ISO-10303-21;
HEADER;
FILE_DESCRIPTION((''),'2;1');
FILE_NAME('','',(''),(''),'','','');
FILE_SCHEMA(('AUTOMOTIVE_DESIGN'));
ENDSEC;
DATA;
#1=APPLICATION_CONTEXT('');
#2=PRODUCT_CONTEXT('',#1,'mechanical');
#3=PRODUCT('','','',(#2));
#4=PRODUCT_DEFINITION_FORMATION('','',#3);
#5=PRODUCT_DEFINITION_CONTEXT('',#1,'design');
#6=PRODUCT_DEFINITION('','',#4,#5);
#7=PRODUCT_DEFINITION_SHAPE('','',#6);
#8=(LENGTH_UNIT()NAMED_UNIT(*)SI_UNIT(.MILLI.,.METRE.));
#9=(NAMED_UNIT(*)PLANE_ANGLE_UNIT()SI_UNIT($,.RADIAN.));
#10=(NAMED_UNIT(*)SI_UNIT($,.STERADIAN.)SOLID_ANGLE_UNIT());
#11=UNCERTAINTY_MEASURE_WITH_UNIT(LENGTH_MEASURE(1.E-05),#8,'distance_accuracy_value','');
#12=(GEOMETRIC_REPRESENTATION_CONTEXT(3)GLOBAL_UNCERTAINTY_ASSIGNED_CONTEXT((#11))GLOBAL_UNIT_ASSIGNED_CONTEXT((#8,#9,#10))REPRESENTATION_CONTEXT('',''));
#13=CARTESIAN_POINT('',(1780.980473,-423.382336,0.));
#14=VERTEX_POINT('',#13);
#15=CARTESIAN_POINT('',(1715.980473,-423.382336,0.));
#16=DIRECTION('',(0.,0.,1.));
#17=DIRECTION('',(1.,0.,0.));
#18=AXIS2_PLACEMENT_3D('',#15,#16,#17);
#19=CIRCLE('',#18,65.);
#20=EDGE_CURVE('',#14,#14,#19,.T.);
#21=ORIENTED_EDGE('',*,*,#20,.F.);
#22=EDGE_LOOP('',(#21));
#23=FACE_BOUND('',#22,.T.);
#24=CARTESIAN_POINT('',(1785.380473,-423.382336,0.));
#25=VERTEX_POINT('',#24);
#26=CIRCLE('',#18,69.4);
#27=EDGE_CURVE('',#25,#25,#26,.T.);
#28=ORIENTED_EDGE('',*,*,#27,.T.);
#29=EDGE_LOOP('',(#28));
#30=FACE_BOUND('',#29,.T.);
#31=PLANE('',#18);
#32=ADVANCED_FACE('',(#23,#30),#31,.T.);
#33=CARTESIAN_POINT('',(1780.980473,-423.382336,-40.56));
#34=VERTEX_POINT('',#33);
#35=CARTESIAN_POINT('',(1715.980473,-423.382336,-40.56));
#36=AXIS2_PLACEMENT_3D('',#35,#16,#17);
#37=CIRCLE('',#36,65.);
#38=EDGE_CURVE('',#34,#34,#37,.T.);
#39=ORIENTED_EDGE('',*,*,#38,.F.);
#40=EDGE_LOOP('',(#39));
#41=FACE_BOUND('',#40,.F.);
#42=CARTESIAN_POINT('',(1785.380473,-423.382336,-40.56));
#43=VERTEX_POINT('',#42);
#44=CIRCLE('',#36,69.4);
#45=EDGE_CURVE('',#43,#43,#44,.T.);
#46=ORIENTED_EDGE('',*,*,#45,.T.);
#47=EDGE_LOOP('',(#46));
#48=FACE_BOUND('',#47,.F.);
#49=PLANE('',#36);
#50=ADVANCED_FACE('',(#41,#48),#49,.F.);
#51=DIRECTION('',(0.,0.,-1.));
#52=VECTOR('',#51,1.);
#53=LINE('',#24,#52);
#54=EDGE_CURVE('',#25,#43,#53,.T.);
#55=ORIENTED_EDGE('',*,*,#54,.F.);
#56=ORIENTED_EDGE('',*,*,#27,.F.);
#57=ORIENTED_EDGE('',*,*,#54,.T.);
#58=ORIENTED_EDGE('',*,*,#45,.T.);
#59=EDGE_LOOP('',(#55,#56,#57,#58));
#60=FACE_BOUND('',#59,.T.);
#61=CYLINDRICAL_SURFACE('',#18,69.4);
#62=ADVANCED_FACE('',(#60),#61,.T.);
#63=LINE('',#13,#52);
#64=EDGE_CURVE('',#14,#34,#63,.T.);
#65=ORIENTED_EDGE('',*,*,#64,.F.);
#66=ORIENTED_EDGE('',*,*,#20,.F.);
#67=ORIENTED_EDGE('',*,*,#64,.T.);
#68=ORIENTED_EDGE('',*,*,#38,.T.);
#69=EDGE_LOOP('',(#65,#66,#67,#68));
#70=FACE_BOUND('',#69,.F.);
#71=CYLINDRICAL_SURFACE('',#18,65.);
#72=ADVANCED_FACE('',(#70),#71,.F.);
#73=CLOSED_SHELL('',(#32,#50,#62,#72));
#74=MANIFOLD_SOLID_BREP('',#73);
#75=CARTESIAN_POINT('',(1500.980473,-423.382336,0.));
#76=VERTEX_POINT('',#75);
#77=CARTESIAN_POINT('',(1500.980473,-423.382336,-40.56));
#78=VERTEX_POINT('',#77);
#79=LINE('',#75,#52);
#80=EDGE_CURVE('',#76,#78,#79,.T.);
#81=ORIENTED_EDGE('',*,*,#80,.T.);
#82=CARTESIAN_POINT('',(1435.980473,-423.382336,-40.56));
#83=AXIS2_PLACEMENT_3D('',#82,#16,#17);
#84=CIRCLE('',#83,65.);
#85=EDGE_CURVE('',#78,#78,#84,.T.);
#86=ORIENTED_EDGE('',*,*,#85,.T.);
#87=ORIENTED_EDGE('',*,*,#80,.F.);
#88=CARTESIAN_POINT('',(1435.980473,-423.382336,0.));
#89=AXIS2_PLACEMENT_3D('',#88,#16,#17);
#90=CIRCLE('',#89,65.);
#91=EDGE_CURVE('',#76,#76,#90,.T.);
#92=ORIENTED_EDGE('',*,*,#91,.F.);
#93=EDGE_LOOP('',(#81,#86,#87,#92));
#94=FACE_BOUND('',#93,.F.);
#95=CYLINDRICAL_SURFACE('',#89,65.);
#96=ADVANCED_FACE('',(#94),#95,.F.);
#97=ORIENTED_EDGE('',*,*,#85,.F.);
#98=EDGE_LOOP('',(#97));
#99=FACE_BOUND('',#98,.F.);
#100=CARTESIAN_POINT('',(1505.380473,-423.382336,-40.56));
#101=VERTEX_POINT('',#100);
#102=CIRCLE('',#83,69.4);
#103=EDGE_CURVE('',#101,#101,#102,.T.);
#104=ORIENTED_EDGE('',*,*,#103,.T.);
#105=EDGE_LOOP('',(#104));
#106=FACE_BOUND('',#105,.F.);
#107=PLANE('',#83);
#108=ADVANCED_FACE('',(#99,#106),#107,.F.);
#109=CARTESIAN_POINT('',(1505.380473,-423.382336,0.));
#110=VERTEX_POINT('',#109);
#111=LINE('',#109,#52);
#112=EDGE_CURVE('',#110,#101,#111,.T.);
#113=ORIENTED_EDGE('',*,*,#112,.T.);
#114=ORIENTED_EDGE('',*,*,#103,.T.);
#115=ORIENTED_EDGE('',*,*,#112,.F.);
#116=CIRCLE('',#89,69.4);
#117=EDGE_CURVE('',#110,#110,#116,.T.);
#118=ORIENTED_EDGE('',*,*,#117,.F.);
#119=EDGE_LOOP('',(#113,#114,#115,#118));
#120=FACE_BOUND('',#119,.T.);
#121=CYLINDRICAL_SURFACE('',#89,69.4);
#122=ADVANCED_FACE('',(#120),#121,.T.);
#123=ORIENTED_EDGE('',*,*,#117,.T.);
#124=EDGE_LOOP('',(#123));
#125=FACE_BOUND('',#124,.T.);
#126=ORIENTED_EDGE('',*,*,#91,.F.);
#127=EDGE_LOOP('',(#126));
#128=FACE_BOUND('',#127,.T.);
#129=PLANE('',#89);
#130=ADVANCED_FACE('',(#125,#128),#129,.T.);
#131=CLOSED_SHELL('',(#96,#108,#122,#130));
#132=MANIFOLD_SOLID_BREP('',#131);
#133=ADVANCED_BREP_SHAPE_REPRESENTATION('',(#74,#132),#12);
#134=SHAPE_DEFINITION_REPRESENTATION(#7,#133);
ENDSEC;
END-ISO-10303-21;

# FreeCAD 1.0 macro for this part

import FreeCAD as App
import Part
import Sketcher

V = App.Vector

doc = App.newDocument("Part")
params = doc.addObject("Spreadsheet::Sheet", "Params")
for row, (alias, value) in enumerate([
    ("sketch1_diameter", "130 mm"),
    ("sketch1_diameter2", "138.8 mm"),
    ("pad1_length", "40.56 mm"),
    ("sketch2_diameter", "130 mm"),
    ("sketch2_diameter2", "138.8 mm"),
    ("pad2_length", "40.56 mm"),
], start=1):
    params.set(f"A{row}", alias)
    params.set(f"B{row}", "=" + value)
    params.setAlias(f"B{row}", alias)

body = doc.addObject("PartDesign::Body", "Body")

sketch1 = doc.addObject("Sketcher::SketchObject", "Sketch")
body.addObject(sketch1)
sketch1.AttachmentSupport = (doc.XY_Plane, [""])
sketch1.MapMode = "FlatFace"
sketch1.addGeometry([
    Part.Circle(V(1715.980473, -423.382336, 0), V(0, 0, 1), 69.4),
    Part.Circle(V(1715.980473, -423.382336, 0), V(0, 0, 1), 65),
], False)
sketch1.addConstraint([
    Sketcher.Constraint("Coincident", 1, 3, 0, 3),
    Sketcher.Constraint("Diameter", 1, 130.0),
    Sketcher.Constraint("Diameter", 0, 138.8),
    Sketcher.Constraint("DistanceX", -1, 1, 0, 3, 1715.980473),
    Sketcher.Constraint("DistanceY", 0, 3, -1, 1, 423.382336),
])
sketch1.setExpression("Constraints[1]", "Params.sketch1_diameter")
sketch1.setExpression("Constraints[2]", "Params.sketch1_diameter2")
pad1 = doc.addObject("PartDesign::Pad", "Pad")
body.addObject(pad1)
pad1.Profile = sketch1
pad1.setExpression("Length", "Params.pad1_length")
pad1.Reversed = True
body2 = doc.addObject("PartDesign::Body", "Body001")

sketch2 = doc.addObject("Sketcher::SketchObject", "Sketch001")
body2.addObject(sketch2)
sketch2.AttachmentSupport = (doc.getObject("XY_Plane001"), [""])
sketch2.MapMode = "FlatFace"
sketch2.addGeometry([
    Part.Circle(V(1435.980473, -423.382336, 0), V(0, 0, 1), 69.4),
    Part.Circle(V(1435.980473, -423.382336, 0), V(0, 0, 1), 65),
], False)
sketch2.addConstraint([
    Sketcher.Constraint("Coincident", 1, 3, 0, 3),
    Sketcher.Constraint("Diameter", 1, 130.0),
    Sketcher.Constraint("Diameter", 0, 138.8),
    Sketcher.Constraint("DistanceX", -1, 1, 0, 3, 1435.980473),
    Sketcher.Constraint("DistanceY", 0, 3, -1, 1, 423.382336),
])
sketch2.setExpression("Constraints[1]", "Params.sketch2_diameter")
sketch2.setExpression("Constraints[2]", "Params.sketch2_diameter2")
pad2 = doc.addObject("PartDesign::Pad", "Pad001")
body2.addObject(pad2)
pad2.Profile = sketch2
pad2.setExpression("Length", "Params.pad2_length")
pad2.Reversed = True

doc.recompute()
